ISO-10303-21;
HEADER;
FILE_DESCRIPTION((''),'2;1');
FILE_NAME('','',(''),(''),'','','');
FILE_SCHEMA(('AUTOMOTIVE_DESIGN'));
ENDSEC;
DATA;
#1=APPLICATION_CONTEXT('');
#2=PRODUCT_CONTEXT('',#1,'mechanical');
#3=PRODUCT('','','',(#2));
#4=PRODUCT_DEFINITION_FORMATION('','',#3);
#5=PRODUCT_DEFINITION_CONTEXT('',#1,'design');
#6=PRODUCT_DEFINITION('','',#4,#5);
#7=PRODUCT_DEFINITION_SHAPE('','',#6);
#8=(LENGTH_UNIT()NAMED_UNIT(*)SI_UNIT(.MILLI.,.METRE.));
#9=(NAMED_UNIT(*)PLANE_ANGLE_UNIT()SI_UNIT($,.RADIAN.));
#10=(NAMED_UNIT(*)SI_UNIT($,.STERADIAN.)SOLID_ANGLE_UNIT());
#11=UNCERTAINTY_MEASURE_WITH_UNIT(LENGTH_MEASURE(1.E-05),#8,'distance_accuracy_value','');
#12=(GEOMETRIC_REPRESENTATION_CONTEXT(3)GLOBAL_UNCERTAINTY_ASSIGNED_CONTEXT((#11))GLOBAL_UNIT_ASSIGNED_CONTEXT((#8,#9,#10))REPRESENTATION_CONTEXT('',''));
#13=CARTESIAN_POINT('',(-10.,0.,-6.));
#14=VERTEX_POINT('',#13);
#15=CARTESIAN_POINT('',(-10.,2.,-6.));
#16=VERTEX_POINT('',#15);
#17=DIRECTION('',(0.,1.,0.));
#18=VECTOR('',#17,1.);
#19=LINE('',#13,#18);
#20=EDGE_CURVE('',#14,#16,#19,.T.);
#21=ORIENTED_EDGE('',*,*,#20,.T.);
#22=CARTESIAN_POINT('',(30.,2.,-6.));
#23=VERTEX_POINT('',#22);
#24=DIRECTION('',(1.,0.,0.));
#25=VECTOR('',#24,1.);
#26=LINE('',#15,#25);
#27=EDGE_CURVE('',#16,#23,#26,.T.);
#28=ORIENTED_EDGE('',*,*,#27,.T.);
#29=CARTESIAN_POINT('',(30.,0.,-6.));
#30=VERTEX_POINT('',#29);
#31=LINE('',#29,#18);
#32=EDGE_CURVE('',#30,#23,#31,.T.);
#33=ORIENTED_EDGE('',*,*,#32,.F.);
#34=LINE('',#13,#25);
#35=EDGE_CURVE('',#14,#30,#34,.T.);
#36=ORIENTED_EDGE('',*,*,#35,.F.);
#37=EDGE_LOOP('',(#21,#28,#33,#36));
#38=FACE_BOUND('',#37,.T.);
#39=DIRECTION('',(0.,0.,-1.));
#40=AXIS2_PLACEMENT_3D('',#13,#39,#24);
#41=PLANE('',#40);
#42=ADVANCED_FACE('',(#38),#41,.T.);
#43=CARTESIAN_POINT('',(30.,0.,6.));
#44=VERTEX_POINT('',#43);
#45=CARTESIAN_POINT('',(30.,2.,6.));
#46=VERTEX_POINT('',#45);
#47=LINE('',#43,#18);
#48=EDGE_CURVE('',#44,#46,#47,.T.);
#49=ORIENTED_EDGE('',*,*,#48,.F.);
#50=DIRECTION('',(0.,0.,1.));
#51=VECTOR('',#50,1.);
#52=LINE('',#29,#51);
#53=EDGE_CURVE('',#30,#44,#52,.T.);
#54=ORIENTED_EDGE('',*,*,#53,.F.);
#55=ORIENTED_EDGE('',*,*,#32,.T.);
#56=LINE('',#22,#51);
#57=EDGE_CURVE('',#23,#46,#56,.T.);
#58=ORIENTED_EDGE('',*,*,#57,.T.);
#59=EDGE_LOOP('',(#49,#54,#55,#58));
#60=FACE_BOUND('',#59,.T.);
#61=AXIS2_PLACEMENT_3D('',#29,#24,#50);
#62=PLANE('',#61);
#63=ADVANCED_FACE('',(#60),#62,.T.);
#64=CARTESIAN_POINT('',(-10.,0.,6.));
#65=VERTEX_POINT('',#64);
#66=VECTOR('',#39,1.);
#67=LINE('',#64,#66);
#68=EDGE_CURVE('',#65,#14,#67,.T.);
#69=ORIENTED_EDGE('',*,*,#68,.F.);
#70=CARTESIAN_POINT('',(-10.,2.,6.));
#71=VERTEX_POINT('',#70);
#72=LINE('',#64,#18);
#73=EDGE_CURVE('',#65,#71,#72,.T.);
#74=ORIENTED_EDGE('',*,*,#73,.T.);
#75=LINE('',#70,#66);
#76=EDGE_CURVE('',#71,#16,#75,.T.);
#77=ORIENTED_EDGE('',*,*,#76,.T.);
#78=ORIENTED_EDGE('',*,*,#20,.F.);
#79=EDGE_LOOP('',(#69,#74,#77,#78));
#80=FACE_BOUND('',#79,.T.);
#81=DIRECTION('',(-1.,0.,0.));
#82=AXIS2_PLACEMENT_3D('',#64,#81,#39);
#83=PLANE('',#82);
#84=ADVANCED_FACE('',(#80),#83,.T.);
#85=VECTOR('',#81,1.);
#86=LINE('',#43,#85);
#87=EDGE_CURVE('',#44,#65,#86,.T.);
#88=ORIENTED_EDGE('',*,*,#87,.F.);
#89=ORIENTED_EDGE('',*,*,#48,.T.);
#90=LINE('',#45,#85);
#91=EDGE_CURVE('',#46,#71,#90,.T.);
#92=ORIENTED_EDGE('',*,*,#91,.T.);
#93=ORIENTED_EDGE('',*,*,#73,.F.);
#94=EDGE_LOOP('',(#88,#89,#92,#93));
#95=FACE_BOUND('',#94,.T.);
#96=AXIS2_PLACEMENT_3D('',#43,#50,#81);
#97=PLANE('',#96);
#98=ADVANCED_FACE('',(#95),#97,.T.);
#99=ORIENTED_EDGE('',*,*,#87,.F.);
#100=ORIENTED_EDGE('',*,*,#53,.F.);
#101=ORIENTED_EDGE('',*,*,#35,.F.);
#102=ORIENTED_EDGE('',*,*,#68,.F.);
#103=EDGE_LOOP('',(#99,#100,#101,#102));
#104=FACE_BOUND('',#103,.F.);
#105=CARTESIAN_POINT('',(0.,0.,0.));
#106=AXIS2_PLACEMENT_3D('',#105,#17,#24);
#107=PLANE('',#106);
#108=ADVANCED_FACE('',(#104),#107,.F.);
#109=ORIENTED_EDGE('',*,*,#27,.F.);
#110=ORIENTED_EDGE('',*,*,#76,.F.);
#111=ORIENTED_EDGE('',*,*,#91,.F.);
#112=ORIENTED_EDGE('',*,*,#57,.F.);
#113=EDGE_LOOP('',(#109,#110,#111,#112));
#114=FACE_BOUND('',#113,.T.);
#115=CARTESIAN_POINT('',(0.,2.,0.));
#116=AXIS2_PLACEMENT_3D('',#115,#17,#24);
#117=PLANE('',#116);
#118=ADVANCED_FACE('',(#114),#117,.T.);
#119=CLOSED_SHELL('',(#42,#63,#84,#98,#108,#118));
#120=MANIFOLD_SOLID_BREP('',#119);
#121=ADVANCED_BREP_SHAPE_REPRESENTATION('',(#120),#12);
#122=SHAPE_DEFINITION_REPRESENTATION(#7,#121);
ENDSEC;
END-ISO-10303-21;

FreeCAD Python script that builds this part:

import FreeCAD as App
import Part
import Sketcher
from FreeCAD import Vector

doc = App.newDocument("Part")
body = doc.addObject("PartDesign::Body", "Body")

# Sketch on XZ plane
sketch1 = body.newObject("Sketcher::SketchObject", "Sketch")
sketch1.AttachmentSupport = (doc.getObject("XZ_Plane"), [""])
sketch1.MapMode = "FlatFace"
sketch1.addGeometry([
    Part.LineSegment(Vector(30, -6, 0), Vector(-10, -6, 0)),
    Part.LineSegment(Vector(-10, -6, 0), Vector(-10, 6, 0)),
    Part.LineSegment(Vector(-10, 6, 0), Vector(30, 6, 0)),
    Part.LineSegment(Vector(30, 6, 0), Vector(30, -6, 0)),
], False)
sketch1.addConstraint([
    Sketcher.Constraint("Coincident", 0, 2, 1, 1),
    Sketcher.Constraint("Coincident", 1, 2, 2, 1),
    Sketcher.Constraint("Coincident", 2, 2, 3, 1),
    Sketcher.Constraint("Coincident", 3, 2, 0, 1),
    Sketcher.Constraint("Horizontal", 0),
    Sketcher.Constraint("Vertical", 1),
    Sketcher.Constraint("Horizontal", 2),
    Sketcher.Constraint("Vertical", 3),
    Sketcher.Constraint("DistanceX", 0, 2, 0, 1, 40.0),
    Sketcher.Constraint("DistanceY", 1, 1, 1, 2, 12.0),
    Sketcher.Constraint("DistanceX", 0, 2, -1, 1, 10.0),
    Sketcher.Constraint("DistanceY", 0, 2, -1, 1, 6.0),
])
pad1 = body.newObject("PartDesign::Pad", "Pad")
pad1.Profile = sketch1
pad1.Length = 2
pad1.Reversed = True

doc.recompute()
